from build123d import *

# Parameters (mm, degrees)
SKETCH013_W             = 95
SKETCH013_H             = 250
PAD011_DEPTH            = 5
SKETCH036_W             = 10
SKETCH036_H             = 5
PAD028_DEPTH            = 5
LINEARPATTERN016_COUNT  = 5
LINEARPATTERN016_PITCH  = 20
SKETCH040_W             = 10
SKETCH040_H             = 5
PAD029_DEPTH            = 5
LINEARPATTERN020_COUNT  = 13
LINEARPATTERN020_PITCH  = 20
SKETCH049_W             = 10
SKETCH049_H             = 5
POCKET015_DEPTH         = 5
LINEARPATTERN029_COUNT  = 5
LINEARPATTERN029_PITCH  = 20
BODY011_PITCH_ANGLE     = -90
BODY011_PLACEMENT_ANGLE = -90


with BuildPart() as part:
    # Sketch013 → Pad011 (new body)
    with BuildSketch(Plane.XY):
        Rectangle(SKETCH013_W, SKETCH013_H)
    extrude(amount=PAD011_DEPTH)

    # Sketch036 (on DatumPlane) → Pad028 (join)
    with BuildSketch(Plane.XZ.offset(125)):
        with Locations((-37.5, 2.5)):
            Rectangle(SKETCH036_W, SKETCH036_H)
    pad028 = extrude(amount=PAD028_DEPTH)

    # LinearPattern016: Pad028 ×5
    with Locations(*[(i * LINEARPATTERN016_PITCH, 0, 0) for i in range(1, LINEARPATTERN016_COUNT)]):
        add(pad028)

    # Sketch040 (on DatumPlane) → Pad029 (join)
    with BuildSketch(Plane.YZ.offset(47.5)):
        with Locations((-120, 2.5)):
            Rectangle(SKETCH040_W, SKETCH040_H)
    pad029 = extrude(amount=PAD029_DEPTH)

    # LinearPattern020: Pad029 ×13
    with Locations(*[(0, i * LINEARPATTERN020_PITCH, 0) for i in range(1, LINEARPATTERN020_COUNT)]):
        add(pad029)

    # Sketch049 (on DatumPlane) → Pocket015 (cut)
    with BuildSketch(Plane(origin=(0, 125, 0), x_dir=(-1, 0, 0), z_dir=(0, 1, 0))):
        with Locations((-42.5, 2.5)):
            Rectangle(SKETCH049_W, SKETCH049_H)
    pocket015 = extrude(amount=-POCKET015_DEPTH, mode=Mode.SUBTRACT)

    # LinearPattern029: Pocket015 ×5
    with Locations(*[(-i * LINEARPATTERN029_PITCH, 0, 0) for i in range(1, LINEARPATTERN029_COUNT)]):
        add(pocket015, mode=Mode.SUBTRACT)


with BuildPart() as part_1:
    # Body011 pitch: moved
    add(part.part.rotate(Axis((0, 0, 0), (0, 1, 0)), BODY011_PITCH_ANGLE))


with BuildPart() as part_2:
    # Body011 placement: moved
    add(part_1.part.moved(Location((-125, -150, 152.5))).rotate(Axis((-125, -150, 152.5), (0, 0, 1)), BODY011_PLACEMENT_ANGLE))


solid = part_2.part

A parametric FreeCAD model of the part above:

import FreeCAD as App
import Part
import Sketcher

V = App.Vector


def add_polygon(sketch, points):
    """Adds a closed chain of lines whose ends are joined by coincident constraints."""
    first, n = sketch.GeometryCount, len(points)
    for a, b in zip(points, points[1:] + points[:1]):
        sketch.addGeometry(Part.LineSegment(App.Vector(*a, 0), App.Vector(*b, 0)), False)
    for i in range(n):
        sketch.addConstraint(Sketcher.Constraint("Coincident", first + i, 2, first + (i + 1) % n, 1))

doc = App.newDocument("Part")
body = doc.addObject("PartDesign::Body", "Body")

# Sketch on XY plane
sketch1 = body.newObject("Sketcher::SketchObject", "Sketch")
sketch1.AttachmentSupport = (doc.getObject("XY_Plane"), [""])
sketch1.MapMode = "FlatFace"
add_polygon(sketch1, [(-48, 125), (-48, -125), (48, -125), (48, 125)])  # lines 0-3
sketch1.addConstraint([
    Sketcher.Constraint("Vertical", 0),
    Sketcher.Constraint("Horizontal", 1),
    Sketcher.Constraint("Vertical", 2),
    Sketcher.Constraint("Horizontal", 3),
    Sketcher.Constraint("Symmetric", 0, 2, 2, 2, -1, 1),
    Sketcher.Constraint("DistanceX", 1, 1, 1, 2, 95.0),
    Sketcher.Constraint("DistanceY", 0, 2, 0, 1, 250.0),
])
pad1 = body.newObject("PartDesign::Pad", "Pad")
pad1.Profile = sketch1
pad1.Length = 5

# Sketch on XZ plane
sketch2 = body.newObject("Sketcher::SketchObject", "Sketch001")
sketch2.AttachmentSupport = (doc.getObject("XZ_Plane"), [""])
sketch2.MapMode = "FlatFace"
sketch2.AttachmentOffset = App.Placement(V(0, 0, 125), App.Rotation())
add_polygon(sketch2, [(-42, 5), (-42, 0), (-32, 0), (-32, 5)])  # lines 0-3
sketch2.addConstraint([
    Sketcher.Constraint("Vertical", 0),
    Sketcher.Constraint("Horizontal", 1),
    Sketcher.Constraint("Vertical", 2),
    Sketcher.Constraint("Horizontal", 3),
    Sketcher.Constraint("PointOnObject", 0, 2, -1),
    Sketcher.Constraint("DistanceX", 1, 1, 1, 2, 10.0),
    Sketcher.Constraint("DistanceY", 0, 2, 0, 1, 5.0),
    Sketcher.Constraint("DistanceX", 0, 2, -1, 1, 42.5),
])
pad2 = body.newObject("PartDesign::Pad", "Pad001")
pad2.Profile = sketch2
pad2.Length = 5
doc.recompute()

linearpattern = body.newObject("PartDesign::LinearPattern", "LinearPattern")
linearpattern.Originals = [pad2]
linearpattern.Direction = (doc.getObject("X_Axis"), [""])
linearpattern.Mode = "offset"
linearpattern.Offset = 20
linearpattern.Occurrences = 5
body.Tip = linearpattern

# Sketch on YZ plane
sketch3 = body.newObject("Sketcher::SketchObject", "Sketch002")
sketch3.AttachmentSupport = (doc.getObject("YZ_Plane"), [""])
sketch3.MapMode = "FlatFace"
sketch3.AttachmentOffset = App.Placement(V(0, 0, 47.5), App.Rotation())
add_polygon(sketch3, [(-125, 5), (-125, 0), (-115, 0), (-115, 5)])  # lines 0-3
sketch3.addConstraint([
    Sketcher.Constraint("Vertical", 0),
    Sketcher.Constraint("Horizontal", 1),
    Sketcher.Constraint("Vertical", 2),
    Sketcher.Constraint("Horizontal", 3),
    Sketcher.Constraint("PointOnObject", 0, 2, -1),
    Sketcher.Constraint("DistanceX", 1, 1, 1, 2, 10.0),
    Sketcher.Constraint("DistanceY", 0, 2, 0, 1, 5.0),
    Sketcher.Constraint("DistanceX", 0, 2, -1, 1, 125.0),
])
pad3 = body.newObject("PartDesign::Pad", "Pad002")
pad3.Profile = sketch3
pad3.Length = 5
doc.recompute()

linearpattern2 = body.newObject("PartDesign::LinearPattern", "LinearPattern001")
linearpattern2.Originals = [pad3]
linearpattern2.Direction = (doc.getObject("Y_Axis"), [""])
linearpattern2.Mode = "offset"
linearpattern2.Offset = 20
linearpattern2.Occurrences = 13
body.Tip = linearpattern2

# Sketch on XZ plane
sketch4 = body.newObject("Sketcher::SketchObject", "Sketch003")
sketch4.AttachmentSupport = (doc.getObject("XZ_Plane"), [""])
sketch4.MapMode = "FlatFace"
sketch4.AttachmentOffset = App.Placement(V(0, 0, -125), App.Rotation())
add_polygon(sketch4, [(48, 5), (48, 0), (38, 0), (38, 5)])  # lines 0-3
sketch4.addConstraint([
    Sketcher.Constraint("Vertical", 0),
    Sketcher.Constraint("Horizontal", 1),
    Sketcher.Constraint("Vertical", 2),
    Sketcher.Constraint("Horizontal", 3),
    Sketcher.Constraint("PointOnObject", 0, 2, -1),
    Sketcher.Constraint("DistanceX", 1, 2, 1, 1, 10.0),
    Sketcher.Constraint("DistanceY", 0, 2, 0, 1, 5.0),
    Sketcher.Constraint("DistanceX", -1, 1, 0, 2, 47.5),
])
pocket1 = body.newObject("PartDesign::Pocket", "Pocket")
pocket1.Profile = sketch4
pocket1.Length = 5
pocket1.Reversed = True
doc.recompute()

linearpattern3 = body.newObject("PartDesign::LinearPattern", "LinearPattern002")
linearpattern3.Originals = [pocket1]
linearpattern3.Direction = (doc.getObject("X_Axis"), [""])
linearpattern3.Mode = "offset"
linearpattern3.Offset = 20
linearpattern3.Occurrences = 5
linearpattern3.Reversed = True
body.Tip = linearpattern3
body2 = doc.addObject("PartDesign::Body", "Body001")
doc.recompute()

body.Placement = App.Placement(V(0, 0, 0), App.Rotation(V(0, 1, 0), 270))
boolean = body2.newObject("PartDesign::Boolean", "Boolean")
boolean.Type = "Fuse"
boolean.addObjects([body])
body3 = doc.addObject("PartDesign::Body", "Body002")
doc.recompute()

body2.Placement = App.Placement(V(-125, -150, 152.5), App.Rotation(V(0, 0, 1), 270))
boolean2 = body3.newObject("PartDesign::Boolean", "Boolean001")
boolean2.Type = "Fuse"
boolean2.addObjects([body2])

doc.recompute()
